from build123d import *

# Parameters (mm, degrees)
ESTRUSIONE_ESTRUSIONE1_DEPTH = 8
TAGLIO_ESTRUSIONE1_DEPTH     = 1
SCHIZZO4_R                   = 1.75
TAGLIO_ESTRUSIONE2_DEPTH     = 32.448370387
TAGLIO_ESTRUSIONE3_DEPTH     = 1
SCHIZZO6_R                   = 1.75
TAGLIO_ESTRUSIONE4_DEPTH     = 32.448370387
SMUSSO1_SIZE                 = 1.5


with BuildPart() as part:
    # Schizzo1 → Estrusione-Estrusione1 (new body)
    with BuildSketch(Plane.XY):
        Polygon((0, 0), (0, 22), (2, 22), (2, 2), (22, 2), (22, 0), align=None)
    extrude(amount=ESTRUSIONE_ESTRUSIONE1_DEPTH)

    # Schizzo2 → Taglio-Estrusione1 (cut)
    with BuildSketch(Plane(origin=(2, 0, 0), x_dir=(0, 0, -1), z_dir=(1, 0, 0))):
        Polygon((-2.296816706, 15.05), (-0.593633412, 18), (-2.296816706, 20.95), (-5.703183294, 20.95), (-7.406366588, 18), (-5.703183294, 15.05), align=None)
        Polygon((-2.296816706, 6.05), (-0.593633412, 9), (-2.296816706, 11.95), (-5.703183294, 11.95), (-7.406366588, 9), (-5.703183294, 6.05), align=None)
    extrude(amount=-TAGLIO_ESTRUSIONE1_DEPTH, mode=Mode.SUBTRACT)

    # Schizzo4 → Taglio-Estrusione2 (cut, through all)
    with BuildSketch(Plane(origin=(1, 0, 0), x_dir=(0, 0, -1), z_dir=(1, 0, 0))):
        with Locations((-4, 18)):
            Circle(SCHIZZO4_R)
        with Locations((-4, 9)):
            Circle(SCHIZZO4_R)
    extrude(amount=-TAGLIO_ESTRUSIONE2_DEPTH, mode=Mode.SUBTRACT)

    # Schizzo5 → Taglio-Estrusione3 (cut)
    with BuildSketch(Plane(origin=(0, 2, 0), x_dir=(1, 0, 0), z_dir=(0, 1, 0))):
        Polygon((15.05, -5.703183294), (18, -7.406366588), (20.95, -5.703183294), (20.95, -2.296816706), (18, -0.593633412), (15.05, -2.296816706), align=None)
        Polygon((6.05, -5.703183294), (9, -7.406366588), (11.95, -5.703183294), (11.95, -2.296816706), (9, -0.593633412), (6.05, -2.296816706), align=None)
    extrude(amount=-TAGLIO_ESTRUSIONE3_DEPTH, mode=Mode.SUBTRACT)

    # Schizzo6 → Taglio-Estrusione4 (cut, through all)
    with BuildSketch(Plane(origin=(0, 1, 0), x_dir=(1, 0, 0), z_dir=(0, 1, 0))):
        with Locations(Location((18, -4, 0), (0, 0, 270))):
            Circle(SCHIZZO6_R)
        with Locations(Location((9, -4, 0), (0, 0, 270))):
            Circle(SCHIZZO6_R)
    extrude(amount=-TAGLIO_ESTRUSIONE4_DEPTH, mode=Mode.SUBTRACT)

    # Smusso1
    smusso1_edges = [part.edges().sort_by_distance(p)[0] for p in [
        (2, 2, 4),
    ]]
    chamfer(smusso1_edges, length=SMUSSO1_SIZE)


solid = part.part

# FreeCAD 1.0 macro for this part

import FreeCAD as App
import Part
import Sketcher
Q = App.Units.Quantity


def edges_at(feature, points):
    """Names of the edges that pass closest to the given points."""
    edges = feature.Shape.Edges
    near = lambda p: min(range(len(edges)), key=lambda i: edges[i].distToShape(Part.Vertex(*p))[0])
    return sorted({f"Edge{near(p) + 1}" for p in points})


def add_polygon(sketch, points):
    """Adds a closed chain of lines whose ends are joined by coincident constraints."""
    first, n = sketch.GeometryCount, len(points)
    for a, b in zip(points, points[1:] + points[:1]):
        sketch.addGeometry(Part.LineSegment(App.Vector(*a, 0), App.Vector(*b, 0)), False)
    for i in range(n):
        sketch.addConstraint(Sketcher.Constraint("Coincident", first + i, 2, first + (i + 1) % n, 1))

doc = App.newDocument("Part")
body = doc.addObject("PartDesign::Body", "Body")

sketch1 = body.newObject("Sketcher::SketchObject", "Sketch")
sketch1.AttachmentSupport = (doc.getObject("XY_Plane"), [""])
sketch1.MapMode = "FlatFace"
add_polygon(sketch1, [(0, 22), (0, 0), (22, 0), (22, 2), (2, 2), (2, 22)])
sketch1.addConstraint([
    Sketcher.Constraint("Vertical", 0),
    Sketcher.Constraint("Horizontal", 1),
    Sketcher.Constraint("Vertical", 2),
    Sketcher.Constraint("Horizontal", 3),
    Sketcher.Constraint("Vertical", 4),
    Sketcher.Constraint("Horizontal", 5),
    Sketcher.Constraint("Coincident", 0, 2, -1, 1),
    Sketcher.Constraint("Equal", 1, 0),
    Sketcher.Constraint("Equal", 5, 2),
    Sketcher.Constraint("DistanceX", 1, 1, 1, 2, Q("22 mm")),
    Sketcher.Constraint("DistanceX", 3, 2, 3, 1, Q("20 mm")),
])
pad1 = body.newObject("PartDesign::Pad", "Pad")
pad1.Profile = sketch1
pad1.Length = 8

sketch2 = body.newObject("Sketcher::SketchObject", "Sketch001")
sketch2.AttachmentSupport = (doc.getObject("YZ_Plane"), [""])
sketch2.MapMode = "FlatFace"
sketch2.AttachmentOffset = App.Placement(App.Vector(0, 0, 2), App.Rotation())
add_polygon(sketch2, [(15.1, 2.3), (18, 0.6), (20.9, 2.3), (20.9, 5.7), (18, 7.4), (15.1, 5.7)])
add_polygon(sketch2, [(6, 2.3), (9, 0.6), (11.9, 2.3), (11.9, 5.7), (9, 7.4), (6, 5.7)])
sketch2.addConstraint([
    Sketcher.Constraint("Vertical", 2),
    Sketcher.Constraint("Vertical", 5),
    Sketcher.Constraint("Vertical", 8),
    Sketcher.Constraint("Vertical", 11),
    Sketcher.Constraint("Parallel", 0, 3),
    Sketcher.Constraint("Parallel", 1, 4),
    Sketcher.Constraint("Parallel", 3, 6),
    Sketcher.Constraint("Parallel", 4, 7),
    Sketcher.Constraint("Parallel", 6, 9),
    Sketcher.Constraint("Parallel", 7, 10),
    Sketcher.Constraint("Horizontal", 2, 2, 4, 2),
    Sketcher.Constraint("Horizontal", 1, 2, 5, 2),
    Sketcher.Constraint("Horizontal", 0, 2, 6, 2),
    Sketcher.Constraint("Horizontal", 5, 2, 7, 2),
    Sketcher.Constraint("Horizontal", 4, 2, 8, 2),
    Sketcher.Constraint("Horizontal", 3, 2, 9, 2),
    Sketcher.Constraint("Horizontal", 8, 2, 10, 2),
    Sketcher.Constraint("Vertical", 0, 2, 3, 2),
    Sketcher.Constraint("Angle", 0, Q("-30 deg")),
    Sketcher.Constraint("DistanceX", -1, 1, 0, 2, Q("18 mm")),
    Sketcher.Constraint("DistanceX", -1, 1, 6, 2, Q("9 mm")),
    Sketcher.Constraint("DistanceX", 4, 2, 2, 2, Q("5.9 mm")),
    Sketcher.Constraint("DistanceY", 2, 1, 2, 2, Q("3.406367 mm")),
    Sketcher.Constraint("DistanceY", -1, 1, 0, 2, Q("0.593633 mm")),
])
pocket1 = body.newObject("PartDesign::Pocket", "Pocket")
pocket1.Profile = sketch2
pocket1.Length = 1

sketch3 = body.newObject("Sketcher::SketchObject", "Sketch002")
sketch3.AttachmentSupport = (doc.getObject("YZ_Plane"), [""])
sketch3.MapMode = "FlatFace"
sketch3.AttachmentOffset = App.Placement(App.Vector(0, 0, 1), App.Rotation())
sketch3.addGeometry([
    Part.Circle(App.Vector(18, 4, 0), App.Vector(0, 0, 1), 1.8),
    Part.Circle(App.Vector(9, 4, 0), App.Vector(0, 0, 1), 1.8),
], False)
sketch3.addConstraint([
    Sketcher.Constraint("Equal", 0, 1),
    Sketcher.Constraint("Horizontal", 0, 3, 1, 3),
    Sketcher.Constraint("Diameter", 0, Q("3.5 mm")),
    Sketcher.Constraint("DistanceX", -1, 1, 0, 3, Q("18 mm")),
    Sketcher.Constraint("DistanceY", -1, 1, 0, 3, Q("4 mm")),
    Sketcher.Constraint("DistanceX", -1, 1, 1, 3, Q("9 mm")),
])
pocket2 = body.newObject("PartDesign::Pocket", "Pocket001")
pocket2.Profile = sketch3
pocket2.Type = "ThroughAll"

sketch4 = body.newObject("Sketcher::SketchObject", "Sketch003")
sketch4.AttachmentSupport = (doc.getObject("XZ_Plane"), [""])
sketch4.MapMode = "FlatFace"
sketch4.AttachmentOffset = App.Placement(App.Vector(0, 0, -2), App.Rotation())
add_polygon(sketch4, [(15.1, 5.7), (18, 7.4), (20.9, 5.7), (20.9, 2.3), (18, 0.6), (15.1, 2.3)])
add_polygon(sketch4, [(6, 5.7), (9, 7.4), (11.9, 5.7), (11.9, 2.3), (9, 0.6), (6, 2.3)])
sketch4.addConstraint([
    Sketcher.Constraint("Vertical", 2),
    Sketcher.Constraint("Vertical", 5),
    Sketcher.Constraint("Vertical", 8),
    Sketcher.Constraint("Vertical", 11),
    Sketcher.Constraint("Parallel", 0, 3),
    Sketcher.Constraint("Parallel", 1, 4),
    Sketcher.Constraint("Parallel", 3, 6),
    Sketcher.Constraint("Parallel", 4, 7),
    Sketcher.Constraint("Parallel", 6, 9),
    Sketcher.Constraint("Parallel", 7, 10),
    Sketcher.Constraint("Horizontal", 2, 2, 4, 2),
    Sketcher.Constraint("Horizontal", 1, 2, 5, 2),
    Sketcher.Constraint("Horizontal", 0, 2, 6, 2),
    Sketcher.Constraint("Horizontal", 5, 2, 7, 2),
    Sketcher.Constraint("Horizontal", 4, 2, 8, 2),
    Sketcher.Constraint("Horizontal", 3, 2, 9, 2),
    Sketcher.Constraint("Horizontal", 8, 2, 10, 2),
    Sketcher.Constraint("Vertical", 0, 2, 3, 2),
    Sketcher.Constraint("Angle", 0, Q("30 deg")),
    Sketcher.Constraint("DistanceX", -1, 1, 0, 2, Q("18 mm")),
    Sketcher.Constraint("DistanceX", -1, 1, 6, 2, Q("9 mm")),
    Sketcher.Constraint("DistanceX", 4, 2, 2, 2, Q("5.9 mm")),
    Sketcher.Constraint("DistanceY", 2, 2, 2, 1, Q("3.406367 mm")),
    Sketcher.Constraint("DistanceY", -1, 1, 0, 2, Q("7.406367 mm")),
])
pocket3 = body.newObject("PartDesign::Pocket", "Pocket002")
pocket3.Profile = sketch4
pocket3.Length = 1
pocket3.Reversed = True

sketch5 = body.newObject("Sketcher::SketchObject", "Sketch004")
sketch5.AttachmentSupport = (doc.getObject("XZ_Plane"), [""])
sketch5.MapMode = "FlatFace"
sketch5.AttachmentOffset = App.Placement(App.Vector(0, 0, -1), App.Rotation())
sketch5.addGeometry([
    Part.Circle(App.Vector(18, 4, 0), App.Vector(0, 0, 1), 1.8),
    Part.Circle(App.Vector(9, 4, 0), App.Vector(0, 0, 1), 1.8),
], False)
sketch5.addConstraint([
    Sketcher.Constraint("Equal", 0, 1),
    Sketcher.Constraint("Horizontal", 0, 3, 1, 3),
    Sketcher.Constraint("Diameter", 0, Q("3.5 mm")),
    Sketcher.Constraint("DistanceX", -1, 1, 0, 3, Q("18 mm")),
    Sketcher.Constraint("DistanceY", -1, 1, 0, 3, Q("4 mm")),
    Sketcher.Constraint("DistanceX", -1, 1, 1, 3, Q("9 mm")),
])
pocket4 = body.newObject("PartDesign::Pocket", "Pocket003")
pocket4.Profile = sketch5
pocket4.Type = "ThroughAll"
pocket4.Reversed = True
doc.recompute()

chamfer = body.newObject("PartDesign::Chamfer", "Chamfer")
chamfer.Base = (pocket4, edges_at(pocket4, [(2, 2, 4)]))
chamfer.Size = 1.5

doc.recompute()
